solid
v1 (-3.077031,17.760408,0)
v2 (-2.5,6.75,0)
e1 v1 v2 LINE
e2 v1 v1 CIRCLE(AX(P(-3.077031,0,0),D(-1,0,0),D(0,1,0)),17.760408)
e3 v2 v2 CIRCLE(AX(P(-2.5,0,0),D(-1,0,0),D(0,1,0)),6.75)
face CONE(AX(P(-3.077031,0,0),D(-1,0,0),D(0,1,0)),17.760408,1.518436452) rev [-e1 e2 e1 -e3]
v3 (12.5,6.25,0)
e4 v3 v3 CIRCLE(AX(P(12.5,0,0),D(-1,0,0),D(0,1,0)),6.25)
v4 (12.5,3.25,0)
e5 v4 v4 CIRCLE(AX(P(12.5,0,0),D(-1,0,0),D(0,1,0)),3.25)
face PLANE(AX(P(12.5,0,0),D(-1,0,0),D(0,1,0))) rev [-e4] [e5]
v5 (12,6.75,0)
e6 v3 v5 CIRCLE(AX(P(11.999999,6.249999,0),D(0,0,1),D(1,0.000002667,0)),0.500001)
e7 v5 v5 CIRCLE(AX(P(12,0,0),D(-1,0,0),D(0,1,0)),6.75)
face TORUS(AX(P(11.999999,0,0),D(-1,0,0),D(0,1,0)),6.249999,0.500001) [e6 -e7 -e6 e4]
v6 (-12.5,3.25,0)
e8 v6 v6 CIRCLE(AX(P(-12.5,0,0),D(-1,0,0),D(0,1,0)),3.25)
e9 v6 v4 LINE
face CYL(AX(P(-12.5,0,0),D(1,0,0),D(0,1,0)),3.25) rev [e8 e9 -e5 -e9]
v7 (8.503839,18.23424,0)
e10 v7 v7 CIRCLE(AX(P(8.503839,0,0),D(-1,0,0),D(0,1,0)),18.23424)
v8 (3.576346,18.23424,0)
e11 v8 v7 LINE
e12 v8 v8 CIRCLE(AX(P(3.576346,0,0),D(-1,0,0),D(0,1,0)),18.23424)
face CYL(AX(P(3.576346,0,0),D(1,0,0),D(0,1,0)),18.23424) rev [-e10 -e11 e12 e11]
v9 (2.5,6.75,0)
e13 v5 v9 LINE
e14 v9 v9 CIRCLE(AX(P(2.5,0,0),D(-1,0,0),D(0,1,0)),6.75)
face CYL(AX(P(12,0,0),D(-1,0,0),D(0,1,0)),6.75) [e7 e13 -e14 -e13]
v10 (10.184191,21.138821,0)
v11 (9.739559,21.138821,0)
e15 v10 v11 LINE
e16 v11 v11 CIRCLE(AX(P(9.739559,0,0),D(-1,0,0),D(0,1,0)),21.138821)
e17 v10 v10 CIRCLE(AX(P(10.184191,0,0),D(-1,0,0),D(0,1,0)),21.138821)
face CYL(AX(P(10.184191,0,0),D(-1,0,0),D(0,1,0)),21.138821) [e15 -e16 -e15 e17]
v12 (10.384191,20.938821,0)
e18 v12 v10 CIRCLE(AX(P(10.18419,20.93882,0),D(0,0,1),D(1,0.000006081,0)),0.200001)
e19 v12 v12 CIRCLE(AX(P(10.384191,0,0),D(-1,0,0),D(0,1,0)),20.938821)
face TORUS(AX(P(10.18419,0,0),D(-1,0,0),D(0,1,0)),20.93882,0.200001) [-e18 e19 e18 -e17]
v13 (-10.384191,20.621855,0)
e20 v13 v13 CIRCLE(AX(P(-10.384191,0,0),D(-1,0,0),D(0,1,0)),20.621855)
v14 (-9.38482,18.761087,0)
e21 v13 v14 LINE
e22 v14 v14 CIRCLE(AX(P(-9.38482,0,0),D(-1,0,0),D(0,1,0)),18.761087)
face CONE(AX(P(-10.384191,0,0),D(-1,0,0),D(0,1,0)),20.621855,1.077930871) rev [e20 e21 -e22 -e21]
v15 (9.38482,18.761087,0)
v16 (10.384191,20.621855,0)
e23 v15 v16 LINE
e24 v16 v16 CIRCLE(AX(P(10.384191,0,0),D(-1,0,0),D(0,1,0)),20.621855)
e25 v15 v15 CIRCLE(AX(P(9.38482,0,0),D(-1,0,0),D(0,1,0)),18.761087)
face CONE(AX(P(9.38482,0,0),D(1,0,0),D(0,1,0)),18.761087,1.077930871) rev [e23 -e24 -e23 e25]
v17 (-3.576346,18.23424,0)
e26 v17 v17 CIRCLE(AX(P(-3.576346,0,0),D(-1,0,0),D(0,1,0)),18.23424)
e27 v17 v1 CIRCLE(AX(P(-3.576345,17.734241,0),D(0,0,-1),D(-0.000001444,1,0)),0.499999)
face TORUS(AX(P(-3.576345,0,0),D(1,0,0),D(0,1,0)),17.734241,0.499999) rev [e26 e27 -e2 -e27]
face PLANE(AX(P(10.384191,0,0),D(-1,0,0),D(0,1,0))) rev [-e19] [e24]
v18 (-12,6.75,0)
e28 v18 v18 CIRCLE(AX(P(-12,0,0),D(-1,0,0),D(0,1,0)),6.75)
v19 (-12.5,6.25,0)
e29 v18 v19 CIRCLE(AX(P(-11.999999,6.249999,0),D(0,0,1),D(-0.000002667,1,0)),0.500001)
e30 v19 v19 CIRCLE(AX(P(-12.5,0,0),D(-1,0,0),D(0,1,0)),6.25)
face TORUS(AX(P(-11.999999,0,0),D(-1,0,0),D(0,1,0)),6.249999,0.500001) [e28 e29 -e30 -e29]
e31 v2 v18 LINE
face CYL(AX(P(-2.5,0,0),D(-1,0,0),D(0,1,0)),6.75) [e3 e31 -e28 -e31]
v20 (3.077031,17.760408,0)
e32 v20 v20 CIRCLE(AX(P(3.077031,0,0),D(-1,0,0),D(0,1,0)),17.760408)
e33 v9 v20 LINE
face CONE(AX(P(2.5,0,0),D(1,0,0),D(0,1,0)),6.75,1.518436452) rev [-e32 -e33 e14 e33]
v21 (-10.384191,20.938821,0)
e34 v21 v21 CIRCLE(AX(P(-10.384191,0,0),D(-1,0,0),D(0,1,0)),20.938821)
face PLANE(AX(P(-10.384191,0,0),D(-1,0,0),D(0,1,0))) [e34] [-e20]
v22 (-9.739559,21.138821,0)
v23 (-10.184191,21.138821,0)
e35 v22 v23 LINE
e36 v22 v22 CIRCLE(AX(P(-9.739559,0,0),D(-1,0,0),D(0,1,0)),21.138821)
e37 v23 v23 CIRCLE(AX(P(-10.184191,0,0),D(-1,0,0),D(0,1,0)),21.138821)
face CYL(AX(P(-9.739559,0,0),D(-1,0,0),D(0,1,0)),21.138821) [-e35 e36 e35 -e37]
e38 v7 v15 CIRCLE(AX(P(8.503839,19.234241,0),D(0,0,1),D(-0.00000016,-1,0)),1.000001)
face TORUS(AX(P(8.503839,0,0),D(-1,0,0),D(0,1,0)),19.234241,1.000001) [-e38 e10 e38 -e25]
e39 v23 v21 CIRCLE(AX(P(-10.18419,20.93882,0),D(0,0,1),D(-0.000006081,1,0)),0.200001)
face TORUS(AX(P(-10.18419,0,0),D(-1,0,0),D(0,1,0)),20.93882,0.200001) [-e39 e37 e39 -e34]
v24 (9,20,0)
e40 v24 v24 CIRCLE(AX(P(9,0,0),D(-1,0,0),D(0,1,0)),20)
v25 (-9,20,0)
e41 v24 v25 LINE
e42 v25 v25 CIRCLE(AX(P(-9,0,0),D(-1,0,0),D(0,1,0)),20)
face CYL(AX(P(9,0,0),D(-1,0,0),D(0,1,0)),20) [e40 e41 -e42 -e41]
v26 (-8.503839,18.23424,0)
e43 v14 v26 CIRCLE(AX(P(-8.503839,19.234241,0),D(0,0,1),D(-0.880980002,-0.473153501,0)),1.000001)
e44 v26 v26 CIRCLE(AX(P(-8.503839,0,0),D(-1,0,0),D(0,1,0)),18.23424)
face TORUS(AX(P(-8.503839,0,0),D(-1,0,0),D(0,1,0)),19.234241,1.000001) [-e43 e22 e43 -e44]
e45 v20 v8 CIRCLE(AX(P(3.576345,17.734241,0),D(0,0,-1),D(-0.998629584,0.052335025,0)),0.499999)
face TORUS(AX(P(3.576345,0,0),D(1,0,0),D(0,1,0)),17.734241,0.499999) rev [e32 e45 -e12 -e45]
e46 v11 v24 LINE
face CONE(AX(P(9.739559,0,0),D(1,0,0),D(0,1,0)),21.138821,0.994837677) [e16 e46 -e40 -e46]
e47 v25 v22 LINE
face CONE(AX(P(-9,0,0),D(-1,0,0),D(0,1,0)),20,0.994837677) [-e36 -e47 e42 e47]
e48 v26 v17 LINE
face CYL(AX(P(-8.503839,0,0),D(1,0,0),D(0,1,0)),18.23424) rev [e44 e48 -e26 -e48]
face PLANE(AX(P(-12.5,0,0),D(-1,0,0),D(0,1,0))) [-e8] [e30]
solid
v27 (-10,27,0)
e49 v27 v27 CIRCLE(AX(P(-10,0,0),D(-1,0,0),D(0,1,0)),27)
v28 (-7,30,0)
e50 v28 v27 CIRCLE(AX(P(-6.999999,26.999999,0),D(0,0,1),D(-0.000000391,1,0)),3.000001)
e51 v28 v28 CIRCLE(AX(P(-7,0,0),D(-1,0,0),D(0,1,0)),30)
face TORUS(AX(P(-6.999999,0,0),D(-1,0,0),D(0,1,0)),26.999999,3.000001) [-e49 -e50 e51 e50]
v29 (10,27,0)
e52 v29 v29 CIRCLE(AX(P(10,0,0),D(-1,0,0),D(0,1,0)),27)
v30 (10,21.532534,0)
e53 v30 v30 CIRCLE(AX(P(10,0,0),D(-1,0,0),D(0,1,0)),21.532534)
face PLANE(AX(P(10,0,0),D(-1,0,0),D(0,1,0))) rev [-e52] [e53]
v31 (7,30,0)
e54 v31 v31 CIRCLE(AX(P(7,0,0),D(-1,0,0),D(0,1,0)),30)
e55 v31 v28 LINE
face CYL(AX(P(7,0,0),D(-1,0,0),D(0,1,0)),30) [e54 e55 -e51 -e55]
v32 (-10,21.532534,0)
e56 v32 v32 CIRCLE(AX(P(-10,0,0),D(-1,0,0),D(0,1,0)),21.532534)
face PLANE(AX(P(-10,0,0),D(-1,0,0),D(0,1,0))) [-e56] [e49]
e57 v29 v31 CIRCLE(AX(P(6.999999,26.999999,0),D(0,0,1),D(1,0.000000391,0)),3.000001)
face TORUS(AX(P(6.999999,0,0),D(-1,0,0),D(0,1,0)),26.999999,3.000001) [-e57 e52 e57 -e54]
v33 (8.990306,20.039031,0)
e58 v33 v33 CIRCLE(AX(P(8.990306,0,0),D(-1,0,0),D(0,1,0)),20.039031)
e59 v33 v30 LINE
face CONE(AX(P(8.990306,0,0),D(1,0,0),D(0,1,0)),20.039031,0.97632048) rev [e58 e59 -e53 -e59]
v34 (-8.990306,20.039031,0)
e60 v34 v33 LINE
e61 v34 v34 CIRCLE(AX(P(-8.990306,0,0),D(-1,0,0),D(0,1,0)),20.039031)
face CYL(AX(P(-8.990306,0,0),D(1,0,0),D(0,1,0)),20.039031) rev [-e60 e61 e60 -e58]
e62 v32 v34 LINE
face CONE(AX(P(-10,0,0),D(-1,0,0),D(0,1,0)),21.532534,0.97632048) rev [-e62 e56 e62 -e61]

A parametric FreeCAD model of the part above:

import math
import FreeCAD as App
import Part
import Sketcher
from FreeCAD import Vector
Q = App.Units.Quantity

doc = App.newDocument("Part")
params = doc.addObject("Spreadsheet::Sheet", "Params")
for row, (alias, value) in enumerate([
    ("sketch1_radius", "3.000001 mm"),
    ("sketch1_radius2", "1.000001 mm"),
    ("sketch1_radius3", "0.500001 mm"),
    ("sketch1_radius4", "0.200001 mm"),
    ("sketch1_width", "14 mm"),
    ("revolution_angle", "360 deg"),
], start=1):
    params.set(f"A{row}", alias)
    params.set(f"B{row}", "=" + value)
    params.setAlias(f"B{row}", alias)

body = doc.addObject("PartDesign::Body", "Body")
body.AllowCompound = True

# Sketch on XY plane
sketch1 = doc.addObject("Sketcher::SketchObject", "Sketch")
body.addObject(sketch1)
sketch1.AttachmentSupport = (doc.XY_Plane, [""])
sketch1.MapMode = "FlatFace"
sketch1.addGeometry(Part.LineSegment(Vector(7, 30, 0), Vector(-7, 30, 0)), False)
sketch1.addGeometry(Part.ArcOfCircle(Part.Circle(Vector(-7, 27, 0), Vector(0, 0, 1), 3), math.radians(90), math.radians(180)), False)
sketch1.addGeometry(Part.LineSegment(Vector(-10, 27, 0), Vector(-10, 21.53, 0)), False)
sketch1.addGeometry(Part.LineSegment(Vector(-10, 21.53, 0), Vector(-8.99, 20.04, 0)), False)
sketch1.addGeometry(Part.LineSegment(Vector(-8.99, 20.04, 0), Vector(8.99, 20.04, 0)), False)
sketch1.addGeometry(Part.LineSegment(Vector(8.99, 20.04, 0), Vector(10, 21.53, 0)), False)
sketch1.addGeometry(Part.LineSegment(Vector(10, 21.53, 0), Vector(10, 27, 0)), False)
sketch1.addGeometry(Part.ArcOfCircle(Part.Circle(Vector(7, 27, 0), Vector(0, 0, 1), 3), math.radians(0), math.radians(90)), False)
sketch1.addGeometry(Part.LineSegment(Vector(-12.5, 3.25, 0), Vector(12.5, 3.25, 0)), False)
sketch1.addGeometry(Part.LineSegment(Vector(12.5, 3.25, 0), Vector(12.5, 6.25, 0)), False)
sketch1.addGeometry(Part.ArcOfCircle(Part.Circle(Vector(12, 6.25, 0), Vector(0, 0, 1), 0.5), math.radians(0), math.radians(90)), False)
sketch1.addGeometry(Part.LineSegment(Vector(12, 6.75, 0), Vector(2.5, 6.75, 0)), False)
sketch1.addGeometry(Part.LineSegment(Vector(2.5, 6.75, 0), Vector(3.08, 17.76, 0)), False)
sketch1.addGeometry(Part.ArcOfCircle(Part.Circle(Vector(3.58, 17.73, 0), Vector(0, 0, 1), 0.5), math.radians(90), math.radians(177)), False)
sketch1.addGeometry(Part.LineSegment(Vector(3.58, 18.23, 0), Vector(8.5, 18.23, 0)), False)
sketch1.addGeometry(Part.ArcOfCircle(Part.Circle(Vector(8.5, 19.23, 0), Vector(0, 0, 1), 1), math.radians(-90), math.radians(-28)), False)
sketch1.addGeometry(Part.LineSegment(Vector(9.38, 18.76, 0), Vector(10.38, 20.62, 0)), False)
sketch1.addGeometry(Part.LineSegment(Vector(10.38, 20.62, 0), Vector(10.38, 20.94, 0)), False)
sketch1.addGeometry(Part.ArcOfCircle(Part.Circle(Vector(10.18, 20.94, 0), Vector(0, 0, 1), 0.2), math.radians(0), math.radians(90)), False)
sketch1.addGeometry(Part.LineSegment(Vector(10.18, 21.14, 0), Vector(9.74, 21.14, 0)), False)
sketch1.addGeometry(Part.LineSegment(Vector(9.74, 21.14, 0), Vector(9, 20, 0)), False)
sketch1.addGeometry(Part.LineSegment(Vector(9, 20, 0), Vector(-9, 20, 0)), False)
sketch1.addGeometry(Part.LineSegment(Vector(-9, 20, 0), Vector(-9.74, 21.14, 0)), False)
sketch1.addGeometry(Part.LineSegment(Vector(-9.74, 21.14, 0), Vector(-10.18, 21.14, 0)), False)
sketch1.addGeometry(Part.ArcOfCircle(Part.Circle(Vector(-10.18, 20.94, 0), Vector(0, 0, 1), 0.2), math.radians(90), math.radians(180)), False)
sketch1.addGeometry(Part.LineSegment(Vector(-10.38, 20.94, 0), Vector(-10.38, 20.62, 0)), False)
sketch1.addGeometry(Part.LineSegment(Vector(-10.38, 20.62, 0), Vector(-9.38, 18.76, 0)), False)
sketch1.addGeometry(Part.ArcOfCircle(Part.Circle(Vector(-8.5, 19.23, 0), Vector(0, 0, 1), 1), math.radians(-152), math.radians(-90)), False)
sketch1.addGeometry(Part.LineSegment(Vector(-8.5, 18.23, 0), Vector(-3.58, 18.23, 0)), False)
sketch1.addGeometry(Part.ArcOfCircle(Part.Circle(Vector(-3.58, 17.73, 0), Vector(0, 0, 1), 0.5), math.radians(3), math.radians(90)), False)
sketch1.addGeometry(Part.LineSegment(Vector(-3.08, 17.76, 0), Vector(-2.5, 6.75, 0)), False)
sketch1.addGeometry(Part.LineSegment(Vector(-2.5, 6.75, 0), Vector(-12, 6.75, 0)), False)
sketch1.addGeometry(Part.ArcOfCircle(Part.Circle(Vector(-12, 6.25, 0), Vector(0, 0, 1), 0.5), math.radians(90), math.radians(180)), False)
sketch1.addGeometry(Part.LineSegment(Vector(-12.5, 6.25, 0), Vector(-12.5, 3.25, 0)), False)
sketch1.addConstraint(Sketcher.Constraint("Tangent", 0, 2, 1, 1))
sketch1.addConstraint(Sketcher.Constraint("Tangent", 1, 2, 2, 1))
sketch1.addConstraint(Sketcher.Constraint("Coincident", 2, 2, 3, 1))
sketch1.addConstraint(Sketcher.Constraint("Coincident", 3, 2, 4, 1))
sketch1.addConstraint(Sketcher.Constraint("Coincident", 4, 2, 5, 1))
sketch1.addConstraint(Sketcher.Constraint("Coincident", 5, 2, 6, 1))
sketch1.addConstraint(Sketcher.Constraint("Tangent", 6, 2, 7, 1))
sketch1.addConstraint(Sketcher.Constraint("Tangent", 7, 2, 0, 1))
sketch1.addConstraint(Sketcher.Constraint("Coincident", 8, 2, 9, 1))
sketch1.addConstraint(Sketcher.Constraint("Coincident", 9, 2, 10, 1))
sketch1.addConstraint(Sketcher.Constraint("Coincident", 10, 2, 11, 1))
sketch1.addConstraint(Sketcher.Constraint("Coincident", 11, 2, 12, 1))
sketch1.addConstraint(Sketcher.Constraint("Tangent", 12, 2, 13, 2))
sketch1.addConstraint(Sketcher.Constraint("Tangent", 13, 1, 14, 1))
sketch1.addConstraint(Sketcher.Constraint("Tangent", 14, 2, 15, 1))
sketch1.addConstraint(Sketcher.Constraint("Tangent", 15, 2, 16, 1))
sketch1.addConstraint(Sketcher.Constraint("Coincident", 16, 2, 17, 1))
sketch1.addConstraint(Sketcher.Constraint("Coincident", 17, 2, 18, 1))
sketch1.addConstraint(Sketcher.Constraint("Coincident", 18, 2, 19, 1))
sketch1.addConstraint(Sketcher.Constraint("Coincident", 19, 2, 20, 1))
sketch1.addConstraint(Sketcher.Constraint("Coincident", 20, 2, 21, 1))
sketch1.addConstraint(Sketcher.Constraint("Coincident", 21, 2, 22, 1))
sketch1.addConstraint(Sketcher.Constraint("Coincident", 22, 2, 23, 1))
sketch1.addConstraint(Sketcher.Constraint("Coincident", 23, 2, 24, 1))
sketch1.addConstraint(Sketcher.Constraint("Coincident", 24, 2, 25, 1))
sketch1.addConstraint(Sketcher.Constraint("Coincident", 25, 2, 26, 1))
sketch1.addConstraint(Sketcher.Constraint("Tangent", 26, 2, 27, 1))
sketch1.addConstraint(Sketcher.Constraint("Tangent", 27, 2, 28, 1))
sketch1.addConstraint(Sketcher.Constraint("Tangent", 28, 2, 29, 2))
sketch1.addConstraint(Sketcher.Constraint("Tangent", 29, 1, 30, 1))
sketch1.addConstraint(Sketcher.Constraint("Coincident", 30, 2, 31, 1))
sketch1.addConstraint(Sketcher.Constraint("Coincident", 31, 2, 32, 1))
sketch1.addConstraint(Sketcher.Constraint("Coincident", 32, 2, 33, 1))
sketch1.addConstraint(Sketcher.Constraint("Coincident", 33, 2, 8, 1))
sketch1.addConstraint(Sketcher.Constraint("Horizontal", 0))
sketch1.addConstraint(Sketcher.Constraint("Vertical", 2))
sketch1.addConstraint(Sketcher.Constraint("Horizontal", 4))
sketch1.addConstraint(Sketcher.Constraint("Vertical", 6))
sketch1.addConstraint(Sketcher.Constraint("Horizontal", 8))
sketch1.addConstraint(Sketcher.Constraint("Vertical", 9))
sketch1.addConstraint(Sketcher.Constraint("Horizontal", 11))
sketch1.addConstraint(Sketcher.Constraint("Horizontal", 14))
sketch1.addConstraint(Sketcher.Constraint("Vertical", 17))
sketch1.addConstraint(Sketcher.Constraint("Horizontal", 19))
sketch1.addConstraint(Sketcher.Constraint("Horizontal", 21))
sketch1.addConstraint(Sketcher.Constraint("Horizontal", 23))
sketch1.addConstraint(Sketcher.Constraint("Vertical", 25))
sketch1.addConstraint(Sketcher.Constraint("Horizontal", 28))
sketch1.addConstraint(Sketcher.Constraint("Horizontal", 31))
sketch1.addConstraint(Sketcher.Constraint("Vertical", 33))
sketch1.addConstraint(Sketcher.Constraint("Equal", 1, 7))
sketch1.addConstraint(Sketcher.Constraint("Equal", 10, 13))
sketch1.addConstraint(Sketcher.Constraint("Equal", 18, 24))
sketch1.addConstraint(Sketcher.Constraint("Equal", 15, 27))
sketch1.addConstraint(Sketcher.Constraint("Equal", 13, 29))
sketch1.addConstraint(Sketcher.Constraint("Equal", 29, 32))
sketch1.addConstraint(Sketcher.Constraint("Symmetric", 18, 3, 24, 3, -2))
sketch1.addConstraint(Sketcher.Constraint("Symmetric", 15, 3, 27, 3, -2))
sketch1.addConstraint(Sketcher.Constraint("Symmetric", 10, 3, 32, 3, -2))
sketch1.addConstraint(Sketcher.Constraint("Symmetric", 2, 2, 5, 2, -2))
sketch1.addConstraint(Sketcher.Constraint("Symmetric", 12, 2, 29, 1, -2))
sketch1.addConstraint(Sketcher.Constraint("Horizontal", 32, 3, 9, 2))
sketch1.addConstraint(Sketcher.Constraint("Horizontal", 24, 3, 17, 2))
sketch1.addConstraint(Sketcher.Constraint("Horizontal", 17, 2, 24, 2))
sketch1.addConstraint(Sketcher.Constraint("Horizontal", 16, 2, 25, 2))
sketch1.addConstraint(Sketcher.Constraint("Horizontal", 9, 2, 32, 2))
sketch1.addConstraint(Sketcher.Constraint("Vertical", 24, 3, 23, 2))
sketch1.addConstraint(Sketcher.Constraint("Vertical", 32, 3, 31, 2))
sketch1.addConstraint(Sketcher.Constraint("Equal", 19, 23))
sketch1.addConstraint(Sketcher.Constraint("Equal", 11, 31))
sketch1.addConstraint(Sketcher.Constraint("Equal", 3, 5))
sketch1.addConstraint(Sketcher.Constraint("Equal", 20, 22))
sketch1.addConstraint(Sketcher.Constraint("Radius", 1, Q("3.000001 mm")))
sketch1.addConstraint(Sketcher.Constraint("Radius", 15, Q("1.000001 mm")))
sketch1.addConstraint(Sketcher.Constraint("Radius", 10, Q("0.500001 mm")))
sketch1.addConstraint(Sketcher.Constraint("Radius", 18, Q("0.200001 mm")))
sketch1.addConstraint(Sketcher.Constraint("DistanceX", 0, 2, 0, 1, Q("14 mm")))
sketch1.addConstraint(Sketcher.Constraint("DistanceX", 8, 1, 8, 2, Q("25 mm")))
sketch1.addConstraint(Sketcher.Constraint("DistanceX", 21, 2, 21, 1, Q("18 mm")))
sketch1.addConstraint(Sketcher.Constraint("DistanceY", 9, 1, 9, 2, Q("3 mm")))
sketch1.addConstraint(Sketcher.Constraint("Angle", 12, Q("87 deg")))
sketch1.addConstraint(Sketcher.Constraint("Angle", 20, Q("-123 deg")))
sketch1.addConstraint(Sketcher.Constraint("DistanceX", 11, 2, 11, 1, Q("9.5 mm")))
sketch1.addConstraint(Sketcher.Constraint("DistanceY", -1, 1, 1, 3, Q("26.999999 mm")))
sketch1.addConstraint(Sketcher.Constraint("DistanceX", -1, 1, 20, 2, Q("9 mm")))
sketch1.addConstraint(Sketcher.Constraint("DistanceY", -1, 1, 20, 2, Q("20 mm")))
sketch1.addConstraint(Sketcher.Constraint("DistanceY", -1, 1, 10, 3, Q("6.249999 mm")))
sketch1.addConstraint(Sketcher.Constraint("Distance", 12, Q("11.025518 mm")))
sketch1.addConstraint(Sketcher.Constraint("Distance", 20, Q("1.357888 mm")))
sketch1.addConstraint(Sketcher.Constraint("DistanceX", 4, 1, 4, 2, Q("17.980612 mm")))
sketch1.addConstraint(Sketcher.Constraint("DistanceX", 14, 1, 14, 2, Q("4.927493 mm")))
sketch1.addConstraint(Sketcher.Constraint("DistanceX", 19, 2, 19, 1, Q("0.444632 mm")))
sketch1.addConstraint(Sketcher.Constraint("DistanceY", 2, 2, 2, 1, Q("5.467466 mm")))
sketch1.addConstraint(Sketcher.Constraint("DistanceY", 17, 1, 17, 2, Q("0.316966 mm")))
sketch1.addConstraint(Sketcher.Constraint("DistanceY", -1, 1, 3, 2, Q("20.039031 mm")))
sketch1.setExpression("Constraints[72]", "Params.sketch1_radius")
sketch1.setExpression("Constraints[73]", "Params.sketch1_radius2")
sketch1.setExpression("Constraints[74]", "Params.sketch1_radius3")
sketch1.setExpression("Constraints[75]", "Params.sketch1_radius4")
sketch1.setExpression("Constraints[76]", "Params.sketch1_width")
revolution = doc.addObject("PartDesign::Revolution", "Revolution")
body.addObject(revolution)
revolution.Profile = sketch1
revolution.ReferenceAxis = (sketch1, ["H_Axis"])
revolution.setExpression("Angle", "Params.revolution_angle")

doc.recompute()
